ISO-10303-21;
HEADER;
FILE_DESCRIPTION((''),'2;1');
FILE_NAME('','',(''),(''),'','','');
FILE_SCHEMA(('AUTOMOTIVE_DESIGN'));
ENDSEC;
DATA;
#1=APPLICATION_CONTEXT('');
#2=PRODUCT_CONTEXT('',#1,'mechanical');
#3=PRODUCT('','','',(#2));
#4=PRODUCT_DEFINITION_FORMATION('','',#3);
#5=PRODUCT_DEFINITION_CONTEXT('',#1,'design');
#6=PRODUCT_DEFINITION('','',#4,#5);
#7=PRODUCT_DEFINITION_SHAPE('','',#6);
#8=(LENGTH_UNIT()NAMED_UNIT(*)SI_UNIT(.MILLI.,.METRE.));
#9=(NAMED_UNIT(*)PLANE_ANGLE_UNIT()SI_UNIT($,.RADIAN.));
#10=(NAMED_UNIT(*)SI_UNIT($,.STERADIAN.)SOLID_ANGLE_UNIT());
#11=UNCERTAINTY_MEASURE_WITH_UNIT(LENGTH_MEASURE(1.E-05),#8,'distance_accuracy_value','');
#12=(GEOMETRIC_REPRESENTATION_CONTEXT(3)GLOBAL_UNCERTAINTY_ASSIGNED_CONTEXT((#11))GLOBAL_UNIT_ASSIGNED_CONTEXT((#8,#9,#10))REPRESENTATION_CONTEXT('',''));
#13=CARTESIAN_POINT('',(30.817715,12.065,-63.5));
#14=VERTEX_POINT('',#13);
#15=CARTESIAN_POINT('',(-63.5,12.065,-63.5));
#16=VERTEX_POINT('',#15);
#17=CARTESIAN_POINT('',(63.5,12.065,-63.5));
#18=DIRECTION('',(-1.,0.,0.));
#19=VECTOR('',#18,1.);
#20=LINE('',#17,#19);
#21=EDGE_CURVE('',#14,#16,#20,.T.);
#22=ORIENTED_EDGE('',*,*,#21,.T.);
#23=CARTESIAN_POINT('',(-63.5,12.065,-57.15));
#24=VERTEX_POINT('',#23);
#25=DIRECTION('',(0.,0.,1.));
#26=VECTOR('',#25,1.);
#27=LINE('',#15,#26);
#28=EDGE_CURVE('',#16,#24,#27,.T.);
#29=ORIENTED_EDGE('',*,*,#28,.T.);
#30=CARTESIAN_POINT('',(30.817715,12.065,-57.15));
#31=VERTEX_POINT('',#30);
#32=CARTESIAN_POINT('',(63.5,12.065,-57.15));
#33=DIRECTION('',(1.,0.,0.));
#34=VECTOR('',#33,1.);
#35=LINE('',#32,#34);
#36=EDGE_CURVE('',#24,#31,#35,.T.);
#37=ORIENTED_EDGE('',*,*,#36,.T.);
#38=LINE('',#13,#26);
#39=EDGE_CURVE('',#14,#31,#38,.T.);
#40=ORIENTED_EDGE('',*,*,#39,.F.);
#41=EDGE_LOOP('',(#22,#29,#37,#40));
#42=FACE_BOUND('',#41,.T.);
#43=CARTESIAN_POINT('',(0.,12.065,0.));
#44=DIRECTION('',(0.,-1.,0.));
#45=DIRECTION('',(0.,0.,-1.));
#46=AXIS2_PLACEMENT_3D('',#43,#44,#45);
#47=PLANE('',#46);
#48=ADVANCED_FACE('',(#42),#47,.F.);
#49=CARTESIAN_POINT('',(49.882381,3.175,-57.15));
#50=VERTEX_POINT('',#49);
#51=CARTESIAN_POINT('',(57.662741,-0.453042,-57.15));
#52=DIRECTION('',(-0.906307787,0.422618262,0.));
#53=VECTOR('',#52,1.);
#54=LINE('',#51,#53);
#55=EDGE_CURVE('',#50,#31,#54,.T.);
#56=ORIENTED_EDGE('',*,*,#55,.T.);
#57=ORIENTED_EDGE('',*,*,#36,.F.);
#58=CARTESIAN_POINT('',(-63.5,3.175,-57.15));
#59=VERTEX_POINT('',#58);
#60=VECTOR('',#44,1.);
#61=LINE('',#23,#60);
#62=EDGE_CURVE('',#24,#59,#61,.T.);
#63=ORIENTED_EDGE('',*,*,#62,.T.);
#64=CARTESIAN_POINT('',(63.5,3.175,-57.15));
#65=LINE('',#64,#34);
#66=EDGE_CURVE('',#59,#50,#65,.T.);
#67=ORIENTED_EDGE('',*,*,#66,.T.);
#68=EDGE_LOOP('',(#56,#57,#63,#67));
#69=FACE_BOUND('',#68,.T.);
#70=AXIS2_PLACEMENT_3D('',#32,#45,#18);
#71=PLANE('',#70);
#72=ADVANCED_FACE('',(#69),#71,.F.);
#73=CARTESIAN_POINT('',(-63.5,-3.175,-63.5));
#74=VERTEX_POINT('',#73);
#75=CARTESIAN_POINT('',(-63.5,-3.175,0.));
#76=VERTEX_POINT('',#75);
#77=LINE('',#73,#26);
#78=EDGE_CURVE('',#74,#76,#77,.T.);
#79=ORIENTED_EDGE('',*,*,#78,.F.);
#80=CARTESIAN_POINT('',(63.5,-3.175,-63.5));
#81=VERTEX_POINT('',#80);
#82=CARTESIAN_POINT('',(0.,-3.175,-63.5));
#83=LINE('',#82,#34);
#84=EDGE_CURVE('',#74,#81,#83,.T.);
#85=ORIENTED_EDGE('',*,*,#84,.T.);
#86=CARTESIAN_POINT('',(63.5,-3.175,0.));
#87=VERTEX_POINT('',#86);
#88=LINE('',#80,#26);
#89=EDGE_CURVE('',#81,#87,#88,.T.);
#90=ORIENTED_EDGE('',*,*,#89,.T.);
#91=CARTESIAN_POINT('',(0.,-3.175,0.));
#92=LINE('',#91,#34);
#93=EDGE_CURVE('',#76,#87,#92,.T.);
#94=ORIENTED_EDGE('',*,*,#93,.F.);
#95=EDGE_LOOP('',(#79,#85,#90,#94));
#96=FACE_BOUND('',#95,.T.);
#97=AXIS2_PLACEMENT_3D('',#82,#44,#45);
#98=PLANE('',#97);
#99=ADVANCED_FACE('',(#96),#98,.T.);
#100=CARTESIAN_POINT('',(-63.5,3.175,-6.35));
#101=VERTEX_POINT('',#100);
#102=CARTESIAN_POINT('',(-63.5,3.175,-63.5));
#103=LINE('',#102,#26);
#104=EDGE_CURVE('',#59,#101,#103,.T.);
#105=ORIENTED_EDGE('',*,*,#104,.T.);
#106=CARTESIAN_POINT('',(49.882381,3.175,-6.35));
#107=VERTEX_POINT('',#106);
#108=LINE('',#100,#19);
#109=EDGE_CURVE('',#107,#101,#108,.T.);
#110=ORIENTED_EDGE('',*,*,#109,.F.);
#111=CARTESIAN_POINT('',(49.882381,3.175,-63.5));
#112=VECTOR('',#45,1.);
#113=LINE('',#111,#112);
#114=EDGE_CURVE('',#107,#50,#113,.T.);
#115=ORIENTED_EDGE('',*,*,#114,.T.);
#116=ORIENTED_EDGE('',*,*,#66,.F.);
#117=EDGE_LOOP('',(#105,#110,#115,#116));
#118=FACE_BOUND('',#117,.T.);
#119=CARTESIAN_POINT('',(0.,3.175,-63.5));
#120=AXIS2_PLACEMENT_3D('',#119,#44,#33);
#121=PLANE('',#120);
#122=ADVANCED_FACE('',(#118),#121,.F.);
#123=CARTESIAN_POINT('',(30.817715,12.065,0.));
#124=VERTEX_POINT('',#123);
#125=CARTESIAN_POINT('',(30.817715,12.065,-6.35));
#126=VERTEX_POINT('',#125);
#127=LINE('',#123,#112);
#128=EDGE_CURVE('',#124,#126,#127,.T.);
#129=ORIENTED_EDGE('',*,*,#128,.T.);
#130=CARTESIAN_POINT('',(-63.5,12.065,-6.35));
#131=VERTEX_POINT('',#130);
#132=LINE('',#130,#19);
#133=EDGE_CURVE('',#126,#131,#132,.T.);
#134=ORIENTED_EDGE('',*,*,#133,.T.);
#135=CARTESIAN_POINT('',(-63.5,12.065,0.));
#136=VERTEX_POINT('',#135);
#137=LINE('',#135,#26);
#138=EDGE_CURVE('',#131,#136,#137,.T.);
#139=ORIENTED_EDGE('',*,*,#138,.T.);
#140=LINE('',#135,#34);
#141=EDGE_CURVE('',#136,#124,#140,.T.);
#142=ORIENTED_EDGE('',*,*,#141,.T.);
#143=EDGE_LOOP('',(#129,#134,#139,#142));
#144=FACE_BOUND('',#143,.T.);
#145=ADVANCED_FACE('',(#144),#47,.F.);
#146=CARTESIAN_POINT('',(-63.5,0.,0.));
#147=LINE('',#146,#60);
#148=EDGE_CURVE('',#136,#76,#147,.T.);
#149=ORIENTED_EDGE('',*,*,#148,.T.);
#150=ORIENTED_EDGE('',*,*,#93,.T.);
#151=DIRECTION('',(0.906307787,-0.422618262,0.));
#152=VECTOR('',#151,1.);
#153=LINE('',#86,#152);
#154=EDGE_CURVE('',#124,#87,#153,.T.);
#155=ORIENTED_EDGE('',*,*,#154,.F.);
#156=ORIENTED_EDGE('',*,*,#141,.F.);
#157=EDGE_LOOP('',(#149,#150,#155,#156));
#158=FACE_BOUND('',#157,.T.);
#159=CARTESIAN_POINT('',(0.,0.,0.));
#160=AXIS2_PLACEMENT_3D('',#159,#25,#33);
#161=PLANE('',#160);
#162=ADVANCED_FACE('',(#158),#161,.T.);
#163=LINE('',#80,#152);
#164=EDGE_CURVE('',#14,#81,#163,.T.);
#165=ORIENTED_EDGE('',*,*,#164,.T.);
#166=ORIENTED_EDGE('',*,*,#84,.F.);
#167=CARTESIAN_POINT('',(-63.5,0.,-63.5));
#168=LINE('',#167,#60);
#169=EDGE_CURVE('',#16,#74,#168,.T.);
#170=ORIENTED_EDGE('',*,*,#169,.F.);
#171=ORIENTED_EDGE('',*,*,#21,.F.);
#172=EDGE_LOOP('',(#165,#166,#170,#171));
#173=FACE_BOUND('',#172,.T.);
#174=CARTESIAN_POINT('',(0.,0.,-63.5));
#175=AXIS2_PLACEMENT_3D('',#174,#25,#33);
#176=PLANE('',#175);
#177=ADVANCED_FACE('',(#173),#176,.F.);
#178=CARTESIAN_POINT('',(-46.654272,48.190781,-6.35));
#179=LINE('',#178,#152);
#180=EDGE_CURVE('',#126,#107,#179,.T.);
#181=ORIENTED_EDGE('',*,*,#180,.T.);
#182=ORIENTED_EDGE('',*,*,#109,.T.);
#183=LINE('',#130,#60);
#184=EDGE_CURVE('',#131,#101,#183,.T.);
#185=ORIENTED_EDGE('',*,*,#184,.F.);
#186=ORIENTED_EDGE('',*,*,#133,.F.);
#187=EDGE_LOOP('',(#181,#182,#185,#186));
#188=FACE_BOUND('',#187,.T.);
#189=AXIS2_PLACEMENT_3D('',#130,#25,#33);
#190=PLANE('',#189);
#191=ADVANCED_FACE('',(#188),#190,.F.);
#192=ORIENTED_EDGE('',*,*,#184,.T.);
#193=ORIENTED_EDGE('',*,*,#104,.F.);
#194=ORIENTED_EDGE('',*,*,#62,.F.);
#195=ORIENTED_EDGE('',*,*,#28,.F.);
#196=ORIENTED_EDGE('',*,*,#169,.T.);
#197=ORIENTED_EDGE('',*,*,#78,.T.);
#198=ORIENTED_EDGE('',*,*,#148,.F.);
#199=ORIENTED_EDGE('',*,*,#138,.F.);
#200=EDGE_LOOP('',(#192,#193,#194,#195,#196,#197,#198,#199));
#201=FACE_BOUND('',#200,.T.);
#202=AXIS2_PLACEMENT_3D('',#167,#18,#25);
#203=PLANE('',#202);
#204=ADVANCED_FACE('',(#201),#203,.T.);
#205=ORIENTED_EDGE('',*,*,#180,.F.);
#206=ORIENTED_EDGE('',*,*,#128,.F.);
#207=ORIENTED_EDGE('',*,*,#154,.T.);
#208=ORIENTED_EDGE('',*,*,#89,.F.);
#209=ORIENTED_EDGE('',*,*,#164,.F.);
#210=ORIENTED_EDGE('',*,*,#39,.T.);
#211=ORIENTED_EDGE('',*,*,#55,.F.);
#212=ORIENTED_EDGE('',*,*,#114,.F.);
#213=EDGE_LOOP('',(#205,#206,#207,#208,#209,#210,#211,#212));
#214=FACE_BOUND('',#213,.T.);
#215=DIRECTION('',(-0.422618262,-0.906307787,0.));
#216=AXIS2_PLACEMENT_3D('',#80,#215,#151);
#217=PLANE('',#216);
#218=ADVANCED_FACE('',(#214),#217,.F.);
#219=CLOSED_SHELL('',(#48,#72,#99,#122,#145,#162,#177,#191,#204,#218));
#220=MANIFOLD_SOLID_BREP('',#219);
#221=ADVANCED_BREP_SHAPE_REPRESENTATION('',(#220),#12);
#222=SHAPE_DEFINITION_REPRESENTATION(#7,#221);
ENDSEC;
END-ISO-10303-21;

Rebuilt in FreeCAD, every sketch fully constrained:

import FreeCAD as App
import Part
import Sketcher
Q = App.Units.Quantity


def add_polygon(sketch, points):
    """Adds a closed chain of lines whose ends are joined by coincident constraints."""
    first, n = sketch.GeometryCount, len(points)
    for a, b in zip(points, points[1:] + points[:1]):
        sketch.addGeometry(Part.LineSegment(App.Vector(*a, 0), App.Vector(*b, 0)), False)
    for i in range(n):
        sketch.addConstraint(Sketcher.Constraint("Coincident", first + i, 2, first + (i + 1) % n, 1))

doc = App.newDocument("Part")
body = doc.addObject("PartDesign::Body", "Body")

sketch1 = doc.addObject("Sketcher::SketchObject", "Sketch")
body.addObject(sketch1)
sketch1.AttachmentSupport = (doc.XY_Plane, [""])
sketch1.MapMode = "FlatFace"
add_polygon(sketch1, [(-64, 3), (-64, -3), (64, -3), (64, 3)])
sketch1.addConstraint(Sketcher.Constraint("Vertical", 0))
sketch1.addConstraint(Sketcher.Constraint("Horizontal", 1))
sketch1.addConstraint(Sketcher.Constraint("Vertical", 2))
sketch1.addConstraint(Sketcher.Constraint("Horizontal", 3))
sketch1.addConstraint(Sketcher.Constraint("Symmetric", 0, 2, 2, 2, -1, 1))
sketch1.addConstraint(Sketcher.Constraint("DistanceX", 1, 1, 1, 2, Q("5 in")))
sketch1.addConstraint(Sketcher.Constraint("DistanceY", 0, 2, 0, 1, Q("0.25 in")))
pad1 = doc.addObject("PartDesign::Pad", "Pad")
body.addObject(pad1)
pad1.Profile = sketch1
pad1.Length = Q("2.5 in")
pad1.Reversed = True

sketch2 = doc.addObject("Sketcher::SketchObject", "Sketch001")
body.addObject(sketch2)
sketch2.AttachmentSupport = (doc.XZ_Plane, [""])
sketch2.MapMode = "FlatFace"
sketch2.AttachmentOffset = App.Placement(App.Vector(0, 0, -0.125 * 25.4), App.Rotation())
add_polygon(sketch2, [(-64, -64), (-64, -57), (64, -57), (64, -64)])
add_polygon(sketch2, [(-64, -6), (-64, 0), (64, 0), (64, -6)])
sketch2.addConstraint(Sketcher.Constraint("Vertical", 0))
sketch2.addConstraint(Sketcher.Constraint("Horizontal", 1))
sketch2.addConstraint(Sketcher.Constraint("Vertical", 2))
sketch2.addConstraint(Sketcher.Constraint("Horizontal", 3))
sketch2.addConstraint(Sketcher.Constraint("Vertical", 4))
sketch2.addConstraint(Sketcher.Constraint("Horizontal", 5))
sketch2.addConstraint(Sketcher.Constraint("Vertical", 6))
sketch2.addConstraint(Sketcher.Constraint("Horizontal", 7))
sketch2.addConstraint(Sketcher.Constraint("Symmetric", 4, 2, 5, 2, -1, 1))
sketch2.addConstraint(Sketcher.Constraint("Vertical", 3, 2, 4, 2))
sketch2.addConstraint(Sketcher.Constraint("Vertical", 2, 2, 5, 2))
sketch2.addConstraint(Sketcher.Constraint("Equal", 2, 4))
sketch2.addConstraint(Sketcher.Constraint("DistanceX", 1, 1, 1, 2, Q("5 in")))
sketch2.addConstraint(Sketcher.Constraint("DistanceY", 1, 2, 6, 2, Q("2 in")))
sketch2.addConstraint(Sketcher.Constraint("DistanceY", 0, 1, 0, 2, Q("0.25 in")))
pad2 = doc.addObject("PartDesign::Pad", "Pad001")
body.addObject(pad2)
pad2.Profile = sketch2
pad2.Length = Q("0.35 in")
pad2.Reversed = True

sketch3 = doc.addObject("Sketcher::SketchObject", "Sketch002")
body.addObject(sketch3)
sketch3.AttachmentSupport = (doc.XY_Plane, [""])
sketch3.MapMode = "FlatFace"
add_polygon(sketch3, [(31, 12), (64, -3), (74, 20), (42, 35)])
sketch3.addConstraint(Sketcher.Constraint("Perpendicular", 0, 1))
sketch3.addConstraint(Sketcher.Constraint("Perpendicular", 1, 2))
sketch3.addConstraint(Sketcher.Constraint("Perpendicular", 2, 3))
sketch3.addConstraint(Sketcher.Constraint("Distance", 1, Q("1 in")))
sketch3.addConstraint(Sketcher.Constraint("Angle", 0, Q("-25 deg")))
sketch3.addConstraint(Sketcher.Constraint("DistanceX", -1, 1, 0, 2, Q("2.5 in")))
sketch3.addConstraint(Sketcher.Constraint("DistanceY", 1, 2, 2, 2, Q("0.6 in")))
sketch3.addConstraint(Sketcher.Constraint("DistanceY", 0, 2, -1, 1, Q("0.125 in")))
pocket1 = doc.addObject("PartDesign::Pocket", "Pocket")
body.addObject(pocket1)
pocket1.Profile = sketch3
pocket1.Type = "ThroughAll"

doc.recompute()
